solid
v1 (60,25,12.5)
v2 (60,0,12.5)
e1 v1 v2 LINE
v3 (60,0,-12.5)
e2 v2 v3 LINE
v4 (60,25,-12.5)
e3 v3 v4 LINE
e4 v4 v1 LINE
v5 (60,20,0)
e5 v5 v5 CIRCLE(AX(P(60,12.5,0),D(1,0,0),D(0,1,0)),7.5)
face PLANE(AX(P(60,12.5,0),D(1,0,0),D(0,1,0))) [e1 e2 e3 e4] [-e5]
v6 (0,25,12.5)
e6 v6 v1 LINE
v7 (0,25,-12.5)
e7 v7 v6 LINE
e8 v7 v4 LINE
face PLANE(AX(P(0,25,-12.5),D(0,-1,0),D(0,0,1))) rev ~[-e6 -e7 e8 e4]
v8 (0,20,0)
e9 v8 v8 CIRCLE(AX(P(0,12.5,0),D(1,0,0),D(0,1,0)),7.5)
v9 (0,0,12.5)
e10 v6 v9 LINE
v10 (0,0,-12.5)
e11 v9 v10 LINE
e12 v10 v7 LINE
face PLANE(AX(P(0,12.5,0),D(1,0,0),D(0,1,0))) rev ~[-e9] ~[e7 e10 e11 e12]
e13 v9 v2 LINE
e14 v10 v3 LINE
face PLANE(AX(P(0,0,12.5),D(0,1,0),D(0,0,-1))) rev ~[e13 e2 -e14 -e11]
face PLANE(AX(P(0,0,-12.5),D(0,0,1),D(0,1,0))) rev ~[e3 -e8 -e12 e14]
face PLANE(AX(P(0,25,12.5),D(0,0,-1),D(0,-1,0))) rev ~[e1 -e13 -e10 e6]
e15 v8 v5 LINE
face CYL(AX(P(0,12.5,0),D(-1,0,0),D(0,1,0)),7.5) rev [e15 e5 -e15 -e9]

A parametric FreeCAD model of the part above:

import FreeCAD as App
import Part
import Sketcher

V = App.Vector


def add_polygon(sketch, points):
    """Adds a closed chain of lines whose ends are joined by coincident constraints."""
    first, n = sketch.GeometryCount, len(points)
    for a, b in zip(points, points[1:] + points[:1]):
        sketch.addGeometry(Part.LineSegment(App.Vector(*a, 0), App.Vector(*b, 0)), False)
    for i in range(n):
        sketch.addConstraint(Sketcher.Constraint("Coincident", first + i, 2, first + (i + 1) % n, 1))

doc = App.newDocument("Part")
body = doc.addObject("PartDesign::Body", "Body")

sketch1 = doc.addObject("Sketcher::SketchObject", "Sketch")
body.addObject(sketch1)
sketch1.AttachmentSupport = (doc.YZ_Plane, [""])
sketch1.MapMode = "FlatFace"
add_polygon(sketch1, [(0, 12), (0, -12), (25, -12), (25, 12)])
sketch1.addGeometry(Part.Circle(V(12, 0, 0), V(0, 0, 1), 8), False)
sketch1.addConstraint([
    Sketcher.Constraint("Vertical", 0),
    Sketcher.Constraint("Horizontal", 1),
    Sketcher.Constraint("Vertical", 2),
    Sketcher.Constraint("Horizontal", 3),
    Sketcher.Constraint("Symmetric", 0, 2, 3, 2, -1, 1),
    Sketcher.Constraint("PointOnObject", 4, 3, -1),
    Sketcher.Constraint("Equal", 3, 0),
    Sketcher.Constraint("Diameter", 4, 15.0),
    Sketcher.Constraint("DistanceX", 1, 1, 1, 2, 25.0),
    Sketcher.Constraint("DistanceX", -1, 1, 4, 3, 12.5),
])
pad1 = doc.addObject("PartDesign::Pad", "Pad")
body.addObject(pad1)
pad1.Profile = sketch1
pad1.Length = 60

doc.recompute()
